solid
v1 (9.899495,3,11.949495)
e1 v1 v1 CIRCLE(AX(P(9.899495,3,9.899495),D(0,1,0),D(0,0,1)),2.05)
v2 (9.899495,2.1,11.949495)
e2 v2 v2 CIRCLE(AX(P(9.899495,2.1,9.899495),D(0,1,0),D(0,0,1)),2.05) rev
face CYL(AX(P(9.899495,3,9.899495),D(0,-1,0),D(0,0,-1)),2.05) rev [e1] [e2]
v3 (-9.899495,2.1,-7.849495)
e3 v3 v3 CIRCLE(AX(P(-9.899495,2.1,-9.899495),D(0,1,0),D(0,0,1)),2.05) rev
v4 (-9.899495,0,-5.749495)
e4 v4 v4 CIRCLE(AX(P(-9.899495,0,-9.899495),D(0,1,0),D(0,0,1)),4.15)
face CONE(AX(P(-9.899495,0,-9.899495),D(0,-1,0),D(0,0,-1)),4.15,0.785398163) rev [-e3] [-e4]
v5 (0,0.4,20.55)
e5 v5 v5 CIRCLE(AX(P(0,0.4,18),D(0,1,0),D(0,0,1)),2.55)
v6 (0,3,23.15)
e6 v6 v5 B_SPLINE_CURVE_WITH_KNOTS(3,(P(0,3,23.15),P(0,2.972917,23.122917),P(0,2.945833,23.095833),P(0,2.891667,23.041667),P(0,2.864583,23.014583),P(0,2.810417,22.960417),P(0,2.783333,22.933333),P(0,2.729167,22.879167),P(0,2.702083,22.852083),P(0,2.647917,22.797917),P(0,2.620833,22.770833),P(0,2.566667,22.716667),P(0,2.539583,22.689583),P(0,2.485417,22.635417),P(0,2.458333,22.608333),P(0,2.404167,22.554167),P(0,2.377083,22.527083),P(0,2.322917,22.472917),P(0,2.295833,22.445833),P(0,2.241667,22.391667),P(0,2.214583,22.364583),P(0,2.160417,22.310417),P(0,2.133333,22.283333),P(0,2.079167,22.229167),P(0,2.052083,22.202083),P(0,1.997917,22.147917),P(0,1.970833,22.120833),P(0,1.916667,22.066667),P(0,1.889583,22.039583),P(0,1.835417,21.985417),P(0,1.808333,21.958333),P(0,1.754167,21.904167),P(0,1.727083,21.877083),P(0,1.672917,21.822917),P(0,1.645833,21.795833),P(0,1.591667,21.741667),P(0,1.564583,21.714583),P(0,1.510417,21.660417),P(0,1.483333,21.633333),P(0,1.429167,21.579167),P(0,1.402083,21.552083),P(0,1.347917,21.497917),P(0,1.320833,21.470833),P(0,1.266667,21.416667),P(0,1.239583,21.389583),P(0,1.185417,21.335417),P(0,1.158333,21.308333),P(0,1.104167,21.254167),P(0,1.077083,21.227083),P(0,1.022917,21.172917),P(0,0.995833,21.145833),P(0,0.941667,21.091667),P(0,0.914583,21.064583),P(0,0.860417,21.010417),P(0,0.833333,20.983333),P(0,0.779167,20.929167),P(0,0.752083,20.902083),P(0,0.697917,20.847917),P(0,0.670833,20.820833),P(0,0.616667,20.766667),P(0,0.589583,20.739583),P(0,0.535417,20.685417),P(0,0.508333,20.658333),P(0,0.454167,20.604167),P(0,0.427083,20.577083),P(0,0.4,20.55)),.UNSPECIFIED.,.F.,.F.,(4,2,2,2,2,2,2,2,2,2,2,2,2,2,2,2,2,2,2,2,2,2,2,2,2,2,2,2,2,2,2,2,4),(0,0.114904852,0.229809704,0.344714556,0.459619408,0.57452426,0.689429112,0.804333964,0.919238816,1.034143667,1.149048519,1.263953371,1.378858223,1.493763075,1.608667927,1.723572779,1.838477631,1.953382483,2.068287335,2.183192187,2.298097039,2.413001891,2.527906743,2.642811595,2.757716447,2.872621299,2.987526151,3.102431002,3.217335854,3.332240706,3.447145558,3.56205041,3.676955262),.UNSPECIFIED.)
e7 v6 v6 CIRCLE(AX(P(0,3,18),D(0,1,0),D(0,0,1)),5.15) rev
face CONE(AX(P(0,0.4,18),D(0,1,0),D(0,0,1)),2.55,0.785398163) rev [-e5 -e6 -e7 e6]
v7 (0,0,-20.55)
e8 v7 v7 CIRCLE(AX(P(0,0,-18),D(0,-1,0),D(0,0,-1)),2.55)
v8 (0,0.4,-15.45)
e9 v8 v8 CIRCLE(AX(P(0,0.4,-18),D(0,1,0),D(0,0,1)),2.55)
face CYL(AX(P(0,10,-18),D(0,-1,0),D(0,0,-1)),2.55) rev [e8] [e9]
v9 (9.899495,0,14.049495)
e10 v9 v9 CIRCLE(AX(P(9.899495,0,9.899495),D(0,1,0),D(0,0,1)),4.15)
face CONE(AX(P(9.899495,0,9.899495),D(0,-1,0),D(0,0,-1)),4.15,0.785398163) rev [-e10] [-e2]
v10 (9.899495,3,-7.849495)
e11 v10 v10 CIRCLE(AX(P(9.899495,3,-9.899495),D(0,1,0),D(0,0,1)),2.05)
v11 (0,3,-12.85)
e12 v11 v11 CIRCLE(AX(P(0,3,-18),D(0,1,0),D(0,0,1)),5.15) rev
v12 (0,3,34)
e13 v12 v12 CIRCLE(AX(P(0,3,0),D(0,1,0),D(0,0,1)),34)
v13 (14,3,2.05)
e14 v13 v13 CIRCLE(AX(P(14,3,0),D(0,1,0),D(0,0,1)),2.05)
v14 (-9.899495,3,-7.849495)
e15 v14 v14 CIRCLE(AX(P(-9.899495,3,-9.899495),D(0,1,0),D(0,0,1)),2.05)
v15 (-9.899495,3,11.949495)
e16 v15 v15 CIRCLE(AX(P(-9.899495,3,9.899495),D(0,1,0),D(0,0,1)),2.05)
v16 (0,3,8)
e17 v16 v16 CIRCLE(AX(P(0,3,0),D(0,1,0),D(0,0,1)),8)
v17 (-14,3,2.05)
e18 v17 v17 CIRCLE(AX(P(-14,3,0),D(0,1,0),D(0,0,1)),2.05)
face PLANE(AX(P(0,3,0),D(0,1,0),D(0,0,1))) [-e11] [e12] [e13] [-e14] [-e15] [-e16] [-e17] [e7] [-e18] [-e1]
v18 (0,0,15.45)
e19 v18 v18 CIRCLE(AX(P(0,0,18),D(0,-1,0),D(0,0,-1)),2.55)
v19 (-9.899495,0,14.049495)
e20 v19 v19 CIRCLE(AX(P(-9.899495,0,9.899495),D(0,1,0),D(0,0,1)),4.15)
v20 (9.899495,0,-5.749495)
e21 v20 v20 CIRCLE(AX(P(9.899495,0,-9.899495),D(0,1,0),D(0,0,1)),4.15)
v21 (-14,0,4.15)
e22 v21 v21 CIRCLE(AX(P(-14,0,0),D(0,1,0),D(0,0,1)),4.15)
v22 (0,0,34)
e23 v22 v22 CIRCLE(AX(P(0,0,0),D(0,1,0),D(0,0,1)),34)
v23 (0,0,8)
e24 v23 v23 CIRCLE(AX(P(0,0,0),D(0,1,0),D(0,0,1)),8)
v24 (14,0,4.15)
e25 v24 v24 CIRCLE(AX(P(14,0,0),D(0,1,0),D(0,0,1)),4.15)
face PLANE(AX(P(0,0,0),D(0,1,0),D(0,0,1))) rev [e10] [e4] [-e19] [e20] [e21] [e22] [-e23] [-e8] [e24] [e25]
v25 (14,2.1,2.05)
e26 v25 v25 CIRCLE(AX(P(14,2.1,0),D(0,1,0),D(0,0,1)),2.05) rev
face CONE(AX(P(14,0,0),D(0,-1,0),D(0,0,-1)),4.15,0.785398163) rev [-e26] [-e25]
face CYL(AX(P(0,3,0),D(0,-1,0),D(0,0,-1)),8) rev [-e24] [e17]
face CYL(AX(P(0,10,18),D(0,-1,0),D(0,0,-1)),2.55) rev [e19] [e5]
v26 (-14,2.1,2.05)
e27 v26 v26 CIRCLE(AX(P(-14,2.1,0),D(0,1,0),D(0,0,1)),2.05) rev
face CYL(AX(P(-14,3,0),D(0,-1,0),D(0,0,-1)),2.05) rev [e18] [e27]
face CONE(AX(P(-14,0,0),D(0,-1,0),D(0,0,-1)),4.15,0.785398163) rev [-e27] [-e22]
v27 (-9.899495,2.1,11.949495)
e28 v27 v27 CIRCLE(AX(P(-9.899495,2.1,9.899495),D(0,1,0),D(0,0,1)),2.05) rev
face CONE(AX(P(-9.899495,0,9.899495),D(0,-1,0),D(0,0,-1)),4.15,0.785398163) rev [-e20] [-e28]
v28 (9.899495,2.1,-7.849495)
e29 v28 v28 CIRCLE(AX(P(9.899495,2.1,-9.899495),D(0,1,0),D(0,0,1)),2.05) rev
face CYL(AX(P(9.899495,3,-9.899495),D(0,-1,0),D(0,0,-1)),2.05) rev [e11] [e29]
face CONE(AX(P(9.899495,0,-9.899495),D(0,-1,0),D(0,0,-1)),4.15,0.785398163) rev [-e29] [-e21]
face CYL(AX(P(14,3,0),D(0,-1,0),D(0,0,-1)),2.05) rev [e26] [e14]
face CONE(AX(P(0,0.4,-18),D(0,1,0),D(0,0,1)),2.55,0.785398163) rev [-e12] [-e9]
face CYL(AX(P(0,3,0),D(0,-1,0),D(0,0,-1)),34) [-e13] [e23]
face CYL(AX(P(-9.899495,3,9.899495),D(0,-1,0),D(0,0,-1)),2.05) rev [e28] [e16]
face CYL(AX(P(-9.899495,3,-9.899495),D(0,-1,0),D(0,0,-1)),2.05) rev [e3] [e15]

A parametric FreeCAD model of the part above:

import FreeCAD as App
import Part
import Sketcher
from FreeCAD import Vector
Q = App.Units.Quantity


def edges_at(feature, points):
    """Names of the edges that pass closest to the given points."""
    edges = feature.Shape.Edges
    near = lambda p: min(range(len(edges)), key=lambda i: edges[i].distToShape(Part.Vertex(*p))[0])
    return sorted({f"Edge{near(p) + 1}" for p in points})

doc = App.newDocument("Part")
params = doc.addObject("Spreadsheet::Sheet", "Params")
for row, (alias, value) in enumerate([
    ("sketch1_diameter", "68 mm"),
    ("sketch1_diameter2", "16 mm"),
    ("sketch1_diameter3", "4.1 mm"),
    ("pad1_length", "3 mm"),
    ("sketch2_diameter", "5.1 mm"),
    ("pocket1_length", "10 mm"),
    ("chamfer_size", "2.1 mm"),
    ("chamfer2_size", "2.6 mm"),
], start=1):
    params.set(f"A{row}", alias)
    params.set(f"B{row}", "=" + value)
    params.setAlias(f"B{row}", alias)

body = doc.addObject("PartDesign::Body", "Body")

sketch1 = body.newObject("Sketcher::SketchObject", "Sketch")
sketch1.AttachmentSupport = (doc.getObject("XZ_Plane"), [""])
sketch1.MapMode = "FlatFace"
sketch1.addGeometry([
    Part.Circle(Vector(0, 0, 0), Vector(0, 0, 1), 34),
    Part.Circle(Vector(-9.9, -9.9, 0), Vector(0, 0, 1), 2),
    Part.Circle(Vector(-14, 0, 0), Vector(0, 0, 1), 2),
    Part.Circle(Vector(-9.9, 9.9, 0), Vector(0, 0, 1), 2),
    Part.Circle(Vector(9.9, -9.9, 0), Vector(0, 0, 1), 2),
    Part.Circle(Vector(0, 0, 0), Vector(0, 0, 1), 8),
    Part.Circle(Vector(14, 0, 0), Vector(0, 0, 1), 2),
    Part.Circle(Vector(9.9, 9.9, 0), Vector(0, 0, 1), 2),
], False)
sketch1.addConstraint([
    Sketcher.Constraint("Coincident", 0, 3, -1, 1),
    Sketcher.Constraint("Coincident", 5, 3, -1, 1),
    Sketcher.Constraint("Equal", 1, 2),
    Sketcher.Constraint("Equal", 2, 3),
    Sketcher.Constraint("Equal", 3, 4),
    Sketcher.Constraint("Equal", 4, 6),
    Sketcher.Constraint("Equal", 6, 7),
    Sketcher.Constraint("Symmetric", 3, 3, 4, 3, -1, 1),
    Sketcher.Constraint("Symmetric", 2, 3, 6, 3, -1, 1),
    Sketcher.Constraint("Symmetric", 1, 3, 7, 3, -1, 1),
    Sketcher.Constraint("Symmetric", 1, 3, 4, 3, -2),
    Sketcher.Constraint("PointOnObject", 2, 3, -1),
    Sketcher.Constraint("Diameter", 0, Q("68 mm")),
    Sketcher.Constraint("Diameter", 5, Q("16 mm")),
    Sketcher.Constraint("Diameter", 1, Q("4.1 mm")),
    Sketcher.Constraint("DistanceX", 2, 3, -1, 1, Q("14 mm")),
    Sketcher.Constraint("DistanceY", 1, 3, 3, 3, Q("19.79899 mm")),
    Sketcher.Constraint("DistanceX", 1, 3, 4, 3, Q("19.79899 mm")),
])
sketch1.setExpression("Constraints[12]", "Params.sketch1_diameter")
sketch1.setExpression("Constraints[13]", "Params.sketch1_diameter2")
sketch1.setExpression("Constraints[14]", "Params.sketch1_diameter3")
pad1 = body.newObject("PartDesign::Pad", "Pad")
pad1.Profile = sketch1
pad1.setExpression("Length", "Params.pad1_length")
pad1.Reversed = True

sketch2 = body.newObject("Sketcher::SketchObject", "Sketch001")
sketch2.AttachmentSupport = (doc.getObject("XZ_Plane"), [""])
sketch2.MapMode = "FlatFace"
sketch2.addGeometry([
    Part.Circle(Vector(0, -18, 0), Vector(0, 0, 1), 2.5),
    Part.Circle(Vector(0, 18, 0), Vector(0, 0, 1), 2.5),
], False)
sketch2.addConstraint([
    Sketcher.Constraint("Equal", 0, 1),
    Sketcher.Constraint("Symmetric", 0, 3, 1, 3, -1, 1),
    Sketcher.Constraint("PointOnObject", 0, 3, -2),
    Sketcher.Constraint("Diameter", 0, Q("5.1 mm")),
    Sketcher.Constraint("DistanceY", 0, 3, -1, 1, Q("18 mm")),
])
sketch2.setExpression("Constraints[3]", "Params.sketch2_diameter")
pocket1 = body.newObject("PartDesign::Pocket", "Pocket")
pocket1.Profile = sketch2
pocket1.setExpression("Length", "Params.pocket1_length")
doc.recompute()

chamfer = body.newObject("PartDesign::Chamfer", "Chamfer")
chamfer.Base = (pocket1, edges_at(pocket1, [
    (-9.899, 0, 7.849),
    (9.899, 0, -11.949),
    (14, 0, -2.05),
    (9.899, 0, 7.849),
    (-9.899, 0, -11.949),
    (-14, 0, -2.05),
]))
chamfer.setExpression("Size", "Params.chamfer_size")
doc.recompute()

chamfer2 = body.newObject("PartDesign::Chamfer", "Chamfer001")
chamfer2.Base = (chamfer, edges_at(chamfer, [(0, 3, -15.45), (0, 3, 20.55)]))
chamfer2.setExpression("Size", "Params.chamfer2_size")

doc.recompute()
